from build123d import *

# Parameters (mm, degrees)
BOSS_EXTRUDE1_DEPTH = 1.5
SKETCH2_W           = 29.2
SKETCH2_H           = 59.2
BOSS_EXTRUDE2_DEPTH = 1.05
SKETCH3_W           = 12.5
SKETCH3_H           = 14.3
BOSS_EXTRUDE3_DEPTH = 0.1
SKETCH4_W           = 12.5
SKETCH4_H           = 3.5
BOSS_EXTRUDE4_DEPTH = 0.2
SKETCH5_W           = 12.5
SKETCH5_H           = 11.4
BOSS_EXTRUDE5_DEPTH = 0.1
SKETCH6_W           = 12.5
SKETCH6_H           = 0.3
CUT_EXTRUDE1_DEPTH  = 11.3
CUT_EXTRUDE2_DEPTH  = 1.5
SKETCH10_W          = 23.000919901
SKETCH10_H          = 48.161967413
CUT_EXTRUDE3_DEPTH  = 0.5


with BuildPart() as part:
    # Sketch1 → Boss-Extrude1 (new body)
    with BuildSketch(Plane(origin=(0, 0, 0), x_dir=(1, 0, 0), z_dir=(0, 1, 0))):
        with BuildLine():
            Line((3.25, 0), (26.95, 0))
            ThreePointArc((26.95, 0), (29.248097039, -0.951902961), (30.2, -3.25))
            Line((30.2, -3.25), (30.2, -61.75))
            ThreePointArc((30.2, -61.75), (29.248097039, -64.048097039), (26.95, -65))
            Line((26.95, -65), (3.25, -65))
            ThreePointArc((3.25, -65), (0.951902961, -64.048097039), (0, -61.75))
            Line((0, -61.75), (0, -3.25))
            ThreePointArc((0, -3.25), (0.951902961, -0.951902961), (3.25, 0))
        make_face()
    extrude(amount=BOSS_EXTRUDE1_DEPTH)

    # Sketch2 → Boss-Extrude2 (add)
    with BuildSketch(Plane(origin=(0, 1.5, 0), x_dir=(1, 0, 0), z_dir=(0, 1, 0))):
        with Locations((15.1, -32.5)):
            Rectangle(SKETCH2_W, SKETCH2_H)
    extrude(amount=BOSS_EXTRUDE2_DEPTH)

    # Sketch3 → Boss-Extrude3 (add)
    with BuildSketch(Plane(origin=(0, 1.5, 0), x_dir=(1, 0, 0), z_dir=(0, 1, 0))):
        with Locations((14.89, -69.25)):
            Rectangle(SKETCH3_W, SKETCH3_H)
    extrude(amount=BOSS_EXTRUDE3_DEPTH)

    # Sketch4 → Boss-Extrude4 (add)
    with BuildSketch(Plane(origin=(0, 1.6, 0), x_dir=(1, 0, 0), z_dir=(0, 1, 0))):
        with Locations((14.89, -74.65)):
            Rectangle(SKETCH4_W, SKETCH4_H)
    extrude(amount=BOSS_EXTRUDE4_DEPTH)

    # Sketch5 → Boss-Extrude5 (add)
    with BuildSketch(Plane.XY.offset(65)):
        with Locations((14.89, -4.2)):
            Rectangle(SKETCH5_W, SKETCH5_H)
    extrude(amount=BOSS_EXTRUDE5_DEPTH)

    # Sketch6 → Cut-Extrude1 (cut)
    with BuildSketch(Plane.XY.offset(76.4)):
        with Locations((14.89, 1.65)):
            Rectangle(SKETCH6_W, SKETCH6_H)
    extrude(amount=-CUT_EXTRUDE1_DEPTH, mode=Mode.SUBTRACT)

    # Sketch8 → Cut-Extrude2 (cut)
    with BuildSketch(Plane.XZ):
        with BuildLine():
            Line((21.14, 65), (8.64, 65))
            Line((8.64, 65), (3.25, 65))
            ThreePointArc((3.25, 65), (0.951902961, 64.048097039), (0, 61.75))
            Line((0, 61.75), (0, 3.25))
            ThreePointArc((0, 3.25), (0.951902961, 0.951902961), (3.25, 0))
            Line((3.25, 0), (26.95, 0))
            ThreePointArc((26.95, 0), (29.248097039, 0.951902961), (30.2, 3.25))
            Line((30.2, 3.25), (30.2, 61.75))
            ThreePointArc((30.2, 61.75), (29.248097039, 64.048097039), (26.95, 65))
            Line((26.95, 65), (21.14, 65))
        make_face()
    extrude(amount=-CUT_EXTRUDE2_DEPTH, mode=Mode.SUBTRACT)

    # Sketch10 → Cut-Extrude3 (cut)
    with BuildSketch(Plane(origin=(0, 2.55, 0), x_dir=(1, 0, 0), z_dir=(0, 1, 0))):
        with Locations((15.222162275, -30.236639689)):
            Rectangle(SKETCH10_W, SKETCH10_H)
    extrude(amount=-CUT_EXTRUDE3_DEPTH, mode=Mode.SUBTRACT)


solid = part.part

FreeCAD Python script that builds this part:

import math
import FreeCAD as App
import Part
import Sketcher


def add_polygon(sketch, points):
    """Adds a closed chain of lines whose ends are joined by coincident constraints."""
    first, n = sketch.GeometryCount, len(points)
    for a, b in zip(points, points[1:] + points[:1]):
        sketch.addGeometry(Part.LineSegment(App.Vector(*a, 0), App.Vector(*b, 0)), False)
    for i in range(n):
        sketch.addConstraint(Sketcher.Constraint("Coincident", first + i, 2, first + (i + 1) % n, 1))

doc = App.newDocument("Part")
body = doc.addObject("PartDesign::Body", "Body")

# Sketch on XZ plane
sketch1 = body.newObject("Sketcher::SketchObject", "Sketch")
sketch1.AttachmentSupport = (doc.getObject("XZ_Plane"), [""])
sketch1.MapMode = "FlatFace"
sketch1.addGeometry(Part.LineSegment(App.Vector(26.9, 0, 0), App.Vector(3.2, 0, 0)), False)
sketch1.addGeometry(Part.ArcOfCircle(Part.Circle(App.Vector(3.2, 3.2, 0), App.Vector(0, 0, 1), 3.2), math.radians(180), math.radians(270)), False)
sketch1.addGeometry(Part.LineSegment(App.Vector(0, 3.2, 0), App.Vector(0, 61.8, 0)), False)
sketch1.addGeometry(Part.ArcOfCircle(Part.Circle(App.Vector(3.2, 61.8, 0), App.Vector(0, 0, 1), 3.2), math.radians(90), math.radians(180)), False)
sketch1.addGeometry(Part.LineSegment(App.Vector(3.2, 65, 0), App.Vector(26.9, 65, 0)), False)
sketch1.addGeometry(Part.ArcOfCircle(Part.Circle(App.Vector(26.9, 61.8, 0), App.Vector(0, 0, 1), 3.2), math.radians(0), math.radians(90)), False)
sketch1.addGeometry(Part.LineSegment(App.Vector(30.2, 61.8, 0), App.Vector(30.2, 3.2, 0)), False)
sketch1.addGeometry(Part.ArcOfCircle(Part.Circle(App.Vector(26.9, 3.2, 0), App.Vector(0, 0, 1), 3.2), math.radians(-90), math.radians(0)), False)
sketch1.addConstraint(Sketcher.Constraint("Tangent", 0, 2, 1, 2))
sketch1.addConstraint(Sketcher.Constraint("Tangent", 1, 1, 2, 1))
sketch1.addConstraint(Sketcher.Constraint("Tangent", 2, 2, 3, 2))
sketch1.addConstraint(Sketcher.Constraint("Tangent", 3, 1, 4, 1))
sketch1.addConstraint(Sketcher.Constraint("Tangent", 4, 2, 5, 2))
sketch1.addConstraint(Sketcher.Constraint("Tangent", 5, 1, 6, 1))
sketch1.addConstraint(Sketcher.Constraint("Tangent", 6, 2, 7, 2))
sketch1.addConstraint(Sketcher.Constraint("Tangent", 7, 1, 0, 1))
sketch1.addConstraint(Sketcher.Constraint("Horizontal", 0))
sketch1.addConstraint(Sketcher.Constraint("Vertical", 2))
sketch1.addConstraint(Sketcher.Constraint("Horizontal", 4))
sketch1.addConstraint(Sketcher.Constraint("Vertical", 6))
sketch1.addConstraint(Sketcher.Constraint("Equal", 1, 3))
sketch1.addConstraint(Sketcher.Constraint("Equal", 3, 5))
sketch1.addConstraint(Sketcher.Constraint("Equal", 5, 7))
sketch1.addConstraint(Sketcher.Constraint("PointOnObject", 0, 2, -1))
sketch1.addConstraint(Sketcher.Constraint("PointOnObject", 1, 1, -2))
sketch1.addConstraint(Sketcher.Constraint("Radius", 1, 3.25))
sketch1.addConstraint(Sketcher.Constraint("DistanceX", 0, 2, 0, 1, 23.7))
sketch1.addConstraint(Sketcher.Constraint("DistanceY", 2, 1, 2, 2, 58.5))
pad1 = body.newObject("PartDesign::Pad", "Pad")
pad1.Profile = sketch1
pad1.Length = 1.5
pad1.Reversed = True

# Sketch on XZ plane
sketch2 = body.newObject("Sketcher::SketchObject", "Sketch001")
sketch2.AttachmentSupport = (doc.getObject("XZ_Plane"), [""])
sketch2.MapMode = "FlatFace"
sketch2.AttachmentOffset = App.Placement(App.Vector(0, 0, -1.5), App.Rotation())
add_polygon(sketch2, [(0, 3), (0, 62), (30, 62), (30, 3)])  # lines 0-3
sketch2.addConstraint(Sketcher.Constraint("Vertical", 0))
sketch2.addConstraint(Sketcher.Constraint("Horizontal", 1))
sketch2.addConstraint(Sketcher.Constraint("Vertical", 2))
sketch2.addConstraint(Sketcher.Constraint("Horizontal", 3))
sketch2.addConstraint(Sketcher.Constraint("DistanceX", 1, 1, 1, 2, 29.2))
sketch2.addConstraint(Sketcher.Constraint("DistanceY", 0, 1, 0, 2, 59.2))
sketch2.addConstraint(Sketcher.Constraint("DistanceX", -1, 1, 0, 2, 0.5))
sketch2.addConstraint(Sketcher.Constraint("DistanceY", -1, 1, 0, 2, 62.1))
pad2 = body.newObject("PartDesign::Pad", "Pad001")
pad2.Profile = sketch2
pad2.Length = 1.05
pad2.Reversed = True

# Sketch on XZ plane
sketch3 = body.newObject("Sketcher::SketchObject", "Sketch002")
sketch3.AttachmentSupport = (doc.getObject("XZ_Plane"), [""])
sketch3.MapMode = "FlatFace"
sketch3.AttachmentOffset = App.Placement(App.Vector(0, 0, -1.5), App.Rotation())
add_polygon(sketch3, [(9, 62), (9, 76), (21, 76), (21, 62)])  # lines 0-3
sketch3.addConstraint(Sketcher.Constraint("Vertical", 0))
sketch3.addConstraint(Sketcher.Constraint("Horizontal", 1))
sketch3.addConstraint(Sketcher.Constraint("Vertical", 2))
sketch3.addConstraint(Sketcher.Constraint("Horizontal", 3))
sketch3.addConstraint(Sketcher.Constraint("DistanceX", 1, 1, 1, 2, 12.5))
sketch3.addConstraint(Sketcher.Constraint("DistanceY", 0, 1, 0, 2, 14.3))
sketch3.addConstraint(Sketcher.Constraint("DistanceY", -1, 1, 0, 2, 76.4))
sketch3.addConstraint(Sketcher.Constraint("DistanceX", -1, 1, 0, 2, 8.64))
pad3 = body.newObject("PartDesign::Pad", "Pad002")
pad3.Profile = sketch3
pad3.Length = 0.1
pad3.Reversed = True

# Sketch on XZ plane
sketch4 = body.newObject("Sketcher::SketchObject", "Sketch003")
sketch4.AttachmentSupport = (doc.getObject("XZ_Plane"), [""])
sketch4.MapMode = "FlatFace"
sketch4.AttachmentOffset = App.Placement(App.Vector(0, 0, -1.6), App.Rotation())
add_polygon(sketch4, [(8.6, 72.9), (8.6, 76.4), (21.1, 76.4), (21.1, 72.9)])  # lines 0-3
sketch4.addConstraint(Sketcher.Constraint("Vertical", 0))
sketch4.addConstraint(Sketcher.Constraint("Horizontal", 1))
sketch4.addConstraint(Sketcher.Constraint("Vertical", 2))
sketch4.addConstraint(Sketcher.Constraint("Horizontal", 3))
sketch4.addConstraint(Sketcher.Constraint("DistanceX", 1, 1, 1, 2, 12.5))
sketch4.addConstraint(Sketcher.Constraint("DistanceY", 0, 1, 0, 2, 3.5))
sketch4.addConstraint(Sketcher.Constraint("DistanceY", -1, 1, 0, 2, 76.4))
sketch4.addConstraint(Sketcher.Constraint("DistanceX", -1, 1, 0, 2, 8.64))
pad4 = body.newObject("PartDesign::Pad", "Pad003")
pad4.Profile = sketch4
pad4.Length = 0.2
pad4.Reversed = True

# Sketch on XY plane
sketch5 = body.newObject("Sketcher::SketchObject", "Sketch004")
sketch5.AttachmentSupport = (doc.getObject("XY_Plane"), [""])
sketch5.MapMode = "FlatFace"
sketch5.AttachmentOffset = App.Placement(App.Vector(0, 0, 65), App.Rotation())
add_polygon(sketch5, [(9, 2), (9, -10), (21, -10), (21, 2)])  # lines 0-3
sketch5.addConstraint(Sketcher.Constraint("Vertical", 0))
sketch5.addConstraint(Sketcher.Constraint("Horizontal", 1))
sketch5.addConstraint(Sketcher.Constraint("Vertical", 2))
sketch5.addConstraint(Sketcher.Constraint("Horizontal", 3))
sketch5.addConstraint(Sketcher.Constraint("DistanceX", 1, 1, 1, 2, 12.5))
sketch5.addConstraint(Sketcher.Constraint("DistanceY", 0, 2, 0, 1, 11.4))
sketch5.addConstraint(Sketcher.Constraint("DistanceY", 0, 2, -1, 1, 9.9))
sketch5.addConstraint(Sketcher.Constraint("DistanceX", -1, 1, 0, 2, 8.64))
pad5 = body.newObject("PartDesign::Pad", "Pad004")
pad5.Profile = sketch5
pad5.Length = 0.1

# Sketch on XY plane
sketch6 = body.newObject("Sketcher::SketchObject", "Sketch005")
sketch6.AttachmentSupport = (doc.getObject("XY_Plane"), [""])
sketch6.MapMode = "FlatFace"
sketch6.AttachmentOffset = App.Placement(App.Vector(0, 0, 76.4), App.Rotation())
add_polygon(sketch6, [(8.64, 1.8), (8.64, 1.5), (21.14, 1.5), (21.14, 1.8)])  # lines 0-3
sketch6.addConstraint(Sketcher.Constraint("Vertical", 0))
sketch6.addConstraint(Sketcher.Constraint("Horizontal", 1))
sketch6.addConstraint(Sketcher.Constraint("Vertical", 2))
sketch6.addConstraint(Sketcher.Constraint("Horizontal", 3))
sketch6.addConstraint(Sketcher.Constraint("DistanceX", 1, 1, 1, 2, 12.5))
sketch6.addConstraint(Sketcher.Constraint("DistanceY", 0, 2, 0, 1, 0.3))
sketch6.addConstraint(Sketcher.Constraint("DistanceY", -1, 1, 0, 2, 1.5))
sketch6.addConstraint(Sketcher.Constraint("DistanceX", -1, 1, 0, 2, 8.64))
pocket1 = body.newObject("PartDesign::Pocket", "Pocket")
pocket1.Profile = sketch6
pocket1.Length = 11.3

# Sketch on XZ plane
sketch7 = body.newObject("Sketcher::SketchObject", "Sketch006")
sketch7.AttachmentSupport = (doc.getObject("XZ_Plane"), [""])
sketch7.MapMode = "FlatFace"
sketch7.addGeometry(Part.ArcOfCircle(Part.Circle(App.Vector(3.2, 61.8, 0), App.Vector(0, 0, 1), 3.2), math.radians(90), math.radians(180)), False)
sketch7.addGeometry(Part.LineSegment(App.Vector(0, 61.8, 0), App.Vector(0, 3.2, 0)), False)
sketch7.addGeometry(Part.ArcOfCircle(Part.Circle(App.Vector(3.2, 3.2, 0), App.Vector(0, 0, 1), 3.2), math.radians(180), math.radians(270)), False)
sketch7.addGeometry(Part.LineSegment(App.Vector(3.2, 0, 0), App.Vector(26.9, 0, 0)), False)
sketch7.addGeometry(Part.ArcOfCircle(Part.Circle(App.Vector(26.9, 3.2, 0), App.Vector(0, 0, 1), 3.2), math.radians(-90), math.radians(0)), False)
sketch7.addGeometry(Part.LineSegment(App.Vector(30.2, 3.2, 0), App.Vector(30.2, 61.8, 0)), False)
sketch7.addGeometry(Part.ArcOfCircle(Part.Circle(App.Vector(26.9, 61.8, 0), App.Vector(0, 0, 1), 3.2), math.radians(0), math.radians(90)), False)
sketch7.addGeometry(Part.LineSegment(App.Vector(26.9, 65, 0), App.Vector(3.2, 65, 0)), False)
sketch7.addConstraint(Sketcher.Constraint("Tangent", 0, 2, 1, 1))
sketch7.addConstraint(Sketcher.Constraint("Tangent", 1, 2, 2, 1))
sketch7.addConstraint(Sketcher.Constraint("Tangent", 2, 2, 3, 1))
sketch7.addConstraint(Sketcher.Constraint("Tangent", 3, 2, 4, 1))
sketch7.addConstraint(Sketcher.Constraint("Tangent", 4, 2, 5, 1))
sketch7.addConstraint(Sketcher.Constraint("Tangent", 5, 2, 6, 1))
sketch7.addConstraint(Sketcher.Constraint("Tangent", 6, 2, 7, 1))
sketch7.addConstraint(Sketcher.Constraint("Tangent", 7, 2, 0, 1))
sketch7.addConstraint(Sketcher.Constraint("Vertical", 1))
sketch7.addConstraint(Sketcher.Constraint("Horizontal", 3))
sketch7.addConstraint(Sketcher.Constraint("Vertical", 5))
sketch7.addConstraint(Sketcher.Constraint("Horizontal", 7))
sketch7.addConstraint(Sketcher.Constraint("Equal", 0, 2))
sketch7.addConstraint(Sketcher.Constraint("Equal", 2, 4))
sketch7.addConstraint(Sketcher.Constraint("Equal", 4, 6))
sketch7.addConstraint(Sketcher.Constraint("PointOnObject", 0, 2, -2))
sketch7.addConstraint(Sketcher.Constraint("PointOnObject", 2, 2, -1))
sketch7.addConstraint(Sketcher.Constraint("Radius", 0, 3.25))
sketch7.addConstraint(Sketcher.Constraint("DistanceX", 3, 1, 3, 2, 23.7))
sketch7.addConstraint(Sketcher.Constraint("DistanceY", 1, 2, 1, 1, 58.5))
pocket2 = body.newObject("PartDesign::Pocket", "Pocket001")
pocket2.Profile = sketch7
pocket2.Length = 1.5

# Sketch on XZ plane
sketch8 = body.newObject("Sketcher::SketchObject", "Sketch007")
sketch8.AttachmentSupport = (doc.getObject("XZ_Plane"), [""])
sketch8.MapMode = "FlatFace"
sketch8.AttachmentOffset = App.Placement(App.Vector(0, 0, -2.55), App.Rotation())
add_polygon(sketch8, [(4, 6), (4, 54), (27, 54), (27, 6)])  # lines 0-3
sketch8.addConstraint(Sketcher.Constraint("Vertical", 0))
sketch8.addConstraint(Sketcher.Constraint("Horizontal", 1))
sketch8.addConstraint(Sketcher.Constraint("Vertical", 2))
sketch8.addConstraint(Sketcher.Constraint("Horizontal", 3))
sketch8.addConstraint(Sketcher.Constraint("DistanceX", 1, 1, 1, 2, 23.00092))
sketch8.addConstraint(Sketcher.Constraint("DistanceY", 0, 1, 0, 2, 48.161967))
sketch8.addConstraint(Sketcher.Constraint("DistanceX", -1, 1, 0, 2, 3.721702))
sketch8.addConstraint(Sketcher.Constraint("DistanceY", -1, 1, 0, 2, 54.317623))
pocket3 = body.newObject("PartDesign::Pocket", "Pocket002")
pocket3.Profile = sketch8
pocket3.Length = 0.5
pocket3.Reversed = True

doc.recompute()
